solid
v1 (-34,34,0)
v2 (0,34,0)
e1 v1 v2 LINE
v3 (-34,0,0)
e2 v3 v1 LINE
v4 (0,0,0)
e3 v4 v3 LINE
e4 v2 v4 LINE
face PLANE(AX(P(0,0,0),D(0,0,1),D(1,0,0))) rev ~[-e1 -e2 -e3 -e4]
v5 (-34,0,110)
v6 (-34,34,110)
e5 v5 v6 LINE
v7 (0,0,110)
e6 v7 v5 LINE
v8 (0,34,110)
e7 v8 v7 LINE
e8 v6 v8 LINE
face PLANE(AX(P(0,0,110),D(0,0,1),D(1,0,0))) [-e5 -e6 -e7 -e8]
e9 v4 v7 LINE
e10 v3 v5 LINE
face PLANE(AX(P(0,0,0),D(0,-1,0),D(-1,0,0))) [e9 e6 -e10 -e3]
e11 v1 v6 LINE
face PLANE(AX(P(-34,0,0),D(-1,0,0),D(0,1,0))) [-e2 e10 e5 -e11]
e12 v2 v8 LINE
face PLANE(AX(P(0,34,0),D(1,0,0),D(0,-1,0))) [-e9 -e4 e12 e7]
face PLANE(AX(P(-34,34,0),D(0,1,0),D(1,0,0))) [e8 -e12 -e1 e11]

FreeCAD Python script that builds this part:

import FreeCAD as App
import Part
import Sketcher

V = App.Vector

doc = App.newDocument("Part")
body = doc.addObject("PartDesign::Body", "Body")

# Sketch on XY plane
sketch1 = body.newObject("Sketcher::SketchObject", "Sketch")
sketch1.AttachmentSupport = (doc.getObject("XY_Plane"), [""])
sketch1.MapMode = "FlatFace"
sketch1.addGeometry(Part.LineSegment(V(-34, 0, 0), V(0, 0, 0)), False)
sketch1.addGeometry(Part.LineSegment(V(0, 0, 0), V(0, 34, 0)), False)
sketch1.addGeometry(Part.LineSegment(V(0, 34, 0), V(-34, 34, 0)), False)
sketch1.addGeometry(Part.LineSegment(V(-34, 34, 0), V(-34, 0, 0)), False)
sketch1.addConstraint(Sketcher.Constraint("Coincident", 0, 2, 1, 1))
sketch1.addConstraint(Sketcher.Constraint("Coincident", 1, 2, 2, 1))
sketch1.addConstraint(Sketcher.Constraint("Coincident", 2, 2, 3, 1))
sketch1.addConstraint(Sketcher.Constraint("Coincident", 3, 2, 0, 1))
sketch1.addConstraint(Sketcher.Constraint("Horizontal", 0))
sketch1.addConstraint(Sketcher.Constraint("Vertical", 1))
sketch1.addConstraint(Sketcher.Constraint("Horizontal", 2))
sketch1.addConstraint(Sketcher.Constraint("Vertical", 3))
sketch1.addConstraint(Sketcher.Constraint("Coincident", 0, 2, -1, 1))
sketch1.addConstraint(Sketcher.Constraint("Equal", 2, 1))
sketch1.addConstraint(Sketcher.Constraint("DistanceX", 0, 1, 0, 2, 34.0))
pad1 = body.newObject("PartDesign::Pad", "Pad")
pad1.Profile = sketch1
pad1.Length = 110

doc.recompute()
